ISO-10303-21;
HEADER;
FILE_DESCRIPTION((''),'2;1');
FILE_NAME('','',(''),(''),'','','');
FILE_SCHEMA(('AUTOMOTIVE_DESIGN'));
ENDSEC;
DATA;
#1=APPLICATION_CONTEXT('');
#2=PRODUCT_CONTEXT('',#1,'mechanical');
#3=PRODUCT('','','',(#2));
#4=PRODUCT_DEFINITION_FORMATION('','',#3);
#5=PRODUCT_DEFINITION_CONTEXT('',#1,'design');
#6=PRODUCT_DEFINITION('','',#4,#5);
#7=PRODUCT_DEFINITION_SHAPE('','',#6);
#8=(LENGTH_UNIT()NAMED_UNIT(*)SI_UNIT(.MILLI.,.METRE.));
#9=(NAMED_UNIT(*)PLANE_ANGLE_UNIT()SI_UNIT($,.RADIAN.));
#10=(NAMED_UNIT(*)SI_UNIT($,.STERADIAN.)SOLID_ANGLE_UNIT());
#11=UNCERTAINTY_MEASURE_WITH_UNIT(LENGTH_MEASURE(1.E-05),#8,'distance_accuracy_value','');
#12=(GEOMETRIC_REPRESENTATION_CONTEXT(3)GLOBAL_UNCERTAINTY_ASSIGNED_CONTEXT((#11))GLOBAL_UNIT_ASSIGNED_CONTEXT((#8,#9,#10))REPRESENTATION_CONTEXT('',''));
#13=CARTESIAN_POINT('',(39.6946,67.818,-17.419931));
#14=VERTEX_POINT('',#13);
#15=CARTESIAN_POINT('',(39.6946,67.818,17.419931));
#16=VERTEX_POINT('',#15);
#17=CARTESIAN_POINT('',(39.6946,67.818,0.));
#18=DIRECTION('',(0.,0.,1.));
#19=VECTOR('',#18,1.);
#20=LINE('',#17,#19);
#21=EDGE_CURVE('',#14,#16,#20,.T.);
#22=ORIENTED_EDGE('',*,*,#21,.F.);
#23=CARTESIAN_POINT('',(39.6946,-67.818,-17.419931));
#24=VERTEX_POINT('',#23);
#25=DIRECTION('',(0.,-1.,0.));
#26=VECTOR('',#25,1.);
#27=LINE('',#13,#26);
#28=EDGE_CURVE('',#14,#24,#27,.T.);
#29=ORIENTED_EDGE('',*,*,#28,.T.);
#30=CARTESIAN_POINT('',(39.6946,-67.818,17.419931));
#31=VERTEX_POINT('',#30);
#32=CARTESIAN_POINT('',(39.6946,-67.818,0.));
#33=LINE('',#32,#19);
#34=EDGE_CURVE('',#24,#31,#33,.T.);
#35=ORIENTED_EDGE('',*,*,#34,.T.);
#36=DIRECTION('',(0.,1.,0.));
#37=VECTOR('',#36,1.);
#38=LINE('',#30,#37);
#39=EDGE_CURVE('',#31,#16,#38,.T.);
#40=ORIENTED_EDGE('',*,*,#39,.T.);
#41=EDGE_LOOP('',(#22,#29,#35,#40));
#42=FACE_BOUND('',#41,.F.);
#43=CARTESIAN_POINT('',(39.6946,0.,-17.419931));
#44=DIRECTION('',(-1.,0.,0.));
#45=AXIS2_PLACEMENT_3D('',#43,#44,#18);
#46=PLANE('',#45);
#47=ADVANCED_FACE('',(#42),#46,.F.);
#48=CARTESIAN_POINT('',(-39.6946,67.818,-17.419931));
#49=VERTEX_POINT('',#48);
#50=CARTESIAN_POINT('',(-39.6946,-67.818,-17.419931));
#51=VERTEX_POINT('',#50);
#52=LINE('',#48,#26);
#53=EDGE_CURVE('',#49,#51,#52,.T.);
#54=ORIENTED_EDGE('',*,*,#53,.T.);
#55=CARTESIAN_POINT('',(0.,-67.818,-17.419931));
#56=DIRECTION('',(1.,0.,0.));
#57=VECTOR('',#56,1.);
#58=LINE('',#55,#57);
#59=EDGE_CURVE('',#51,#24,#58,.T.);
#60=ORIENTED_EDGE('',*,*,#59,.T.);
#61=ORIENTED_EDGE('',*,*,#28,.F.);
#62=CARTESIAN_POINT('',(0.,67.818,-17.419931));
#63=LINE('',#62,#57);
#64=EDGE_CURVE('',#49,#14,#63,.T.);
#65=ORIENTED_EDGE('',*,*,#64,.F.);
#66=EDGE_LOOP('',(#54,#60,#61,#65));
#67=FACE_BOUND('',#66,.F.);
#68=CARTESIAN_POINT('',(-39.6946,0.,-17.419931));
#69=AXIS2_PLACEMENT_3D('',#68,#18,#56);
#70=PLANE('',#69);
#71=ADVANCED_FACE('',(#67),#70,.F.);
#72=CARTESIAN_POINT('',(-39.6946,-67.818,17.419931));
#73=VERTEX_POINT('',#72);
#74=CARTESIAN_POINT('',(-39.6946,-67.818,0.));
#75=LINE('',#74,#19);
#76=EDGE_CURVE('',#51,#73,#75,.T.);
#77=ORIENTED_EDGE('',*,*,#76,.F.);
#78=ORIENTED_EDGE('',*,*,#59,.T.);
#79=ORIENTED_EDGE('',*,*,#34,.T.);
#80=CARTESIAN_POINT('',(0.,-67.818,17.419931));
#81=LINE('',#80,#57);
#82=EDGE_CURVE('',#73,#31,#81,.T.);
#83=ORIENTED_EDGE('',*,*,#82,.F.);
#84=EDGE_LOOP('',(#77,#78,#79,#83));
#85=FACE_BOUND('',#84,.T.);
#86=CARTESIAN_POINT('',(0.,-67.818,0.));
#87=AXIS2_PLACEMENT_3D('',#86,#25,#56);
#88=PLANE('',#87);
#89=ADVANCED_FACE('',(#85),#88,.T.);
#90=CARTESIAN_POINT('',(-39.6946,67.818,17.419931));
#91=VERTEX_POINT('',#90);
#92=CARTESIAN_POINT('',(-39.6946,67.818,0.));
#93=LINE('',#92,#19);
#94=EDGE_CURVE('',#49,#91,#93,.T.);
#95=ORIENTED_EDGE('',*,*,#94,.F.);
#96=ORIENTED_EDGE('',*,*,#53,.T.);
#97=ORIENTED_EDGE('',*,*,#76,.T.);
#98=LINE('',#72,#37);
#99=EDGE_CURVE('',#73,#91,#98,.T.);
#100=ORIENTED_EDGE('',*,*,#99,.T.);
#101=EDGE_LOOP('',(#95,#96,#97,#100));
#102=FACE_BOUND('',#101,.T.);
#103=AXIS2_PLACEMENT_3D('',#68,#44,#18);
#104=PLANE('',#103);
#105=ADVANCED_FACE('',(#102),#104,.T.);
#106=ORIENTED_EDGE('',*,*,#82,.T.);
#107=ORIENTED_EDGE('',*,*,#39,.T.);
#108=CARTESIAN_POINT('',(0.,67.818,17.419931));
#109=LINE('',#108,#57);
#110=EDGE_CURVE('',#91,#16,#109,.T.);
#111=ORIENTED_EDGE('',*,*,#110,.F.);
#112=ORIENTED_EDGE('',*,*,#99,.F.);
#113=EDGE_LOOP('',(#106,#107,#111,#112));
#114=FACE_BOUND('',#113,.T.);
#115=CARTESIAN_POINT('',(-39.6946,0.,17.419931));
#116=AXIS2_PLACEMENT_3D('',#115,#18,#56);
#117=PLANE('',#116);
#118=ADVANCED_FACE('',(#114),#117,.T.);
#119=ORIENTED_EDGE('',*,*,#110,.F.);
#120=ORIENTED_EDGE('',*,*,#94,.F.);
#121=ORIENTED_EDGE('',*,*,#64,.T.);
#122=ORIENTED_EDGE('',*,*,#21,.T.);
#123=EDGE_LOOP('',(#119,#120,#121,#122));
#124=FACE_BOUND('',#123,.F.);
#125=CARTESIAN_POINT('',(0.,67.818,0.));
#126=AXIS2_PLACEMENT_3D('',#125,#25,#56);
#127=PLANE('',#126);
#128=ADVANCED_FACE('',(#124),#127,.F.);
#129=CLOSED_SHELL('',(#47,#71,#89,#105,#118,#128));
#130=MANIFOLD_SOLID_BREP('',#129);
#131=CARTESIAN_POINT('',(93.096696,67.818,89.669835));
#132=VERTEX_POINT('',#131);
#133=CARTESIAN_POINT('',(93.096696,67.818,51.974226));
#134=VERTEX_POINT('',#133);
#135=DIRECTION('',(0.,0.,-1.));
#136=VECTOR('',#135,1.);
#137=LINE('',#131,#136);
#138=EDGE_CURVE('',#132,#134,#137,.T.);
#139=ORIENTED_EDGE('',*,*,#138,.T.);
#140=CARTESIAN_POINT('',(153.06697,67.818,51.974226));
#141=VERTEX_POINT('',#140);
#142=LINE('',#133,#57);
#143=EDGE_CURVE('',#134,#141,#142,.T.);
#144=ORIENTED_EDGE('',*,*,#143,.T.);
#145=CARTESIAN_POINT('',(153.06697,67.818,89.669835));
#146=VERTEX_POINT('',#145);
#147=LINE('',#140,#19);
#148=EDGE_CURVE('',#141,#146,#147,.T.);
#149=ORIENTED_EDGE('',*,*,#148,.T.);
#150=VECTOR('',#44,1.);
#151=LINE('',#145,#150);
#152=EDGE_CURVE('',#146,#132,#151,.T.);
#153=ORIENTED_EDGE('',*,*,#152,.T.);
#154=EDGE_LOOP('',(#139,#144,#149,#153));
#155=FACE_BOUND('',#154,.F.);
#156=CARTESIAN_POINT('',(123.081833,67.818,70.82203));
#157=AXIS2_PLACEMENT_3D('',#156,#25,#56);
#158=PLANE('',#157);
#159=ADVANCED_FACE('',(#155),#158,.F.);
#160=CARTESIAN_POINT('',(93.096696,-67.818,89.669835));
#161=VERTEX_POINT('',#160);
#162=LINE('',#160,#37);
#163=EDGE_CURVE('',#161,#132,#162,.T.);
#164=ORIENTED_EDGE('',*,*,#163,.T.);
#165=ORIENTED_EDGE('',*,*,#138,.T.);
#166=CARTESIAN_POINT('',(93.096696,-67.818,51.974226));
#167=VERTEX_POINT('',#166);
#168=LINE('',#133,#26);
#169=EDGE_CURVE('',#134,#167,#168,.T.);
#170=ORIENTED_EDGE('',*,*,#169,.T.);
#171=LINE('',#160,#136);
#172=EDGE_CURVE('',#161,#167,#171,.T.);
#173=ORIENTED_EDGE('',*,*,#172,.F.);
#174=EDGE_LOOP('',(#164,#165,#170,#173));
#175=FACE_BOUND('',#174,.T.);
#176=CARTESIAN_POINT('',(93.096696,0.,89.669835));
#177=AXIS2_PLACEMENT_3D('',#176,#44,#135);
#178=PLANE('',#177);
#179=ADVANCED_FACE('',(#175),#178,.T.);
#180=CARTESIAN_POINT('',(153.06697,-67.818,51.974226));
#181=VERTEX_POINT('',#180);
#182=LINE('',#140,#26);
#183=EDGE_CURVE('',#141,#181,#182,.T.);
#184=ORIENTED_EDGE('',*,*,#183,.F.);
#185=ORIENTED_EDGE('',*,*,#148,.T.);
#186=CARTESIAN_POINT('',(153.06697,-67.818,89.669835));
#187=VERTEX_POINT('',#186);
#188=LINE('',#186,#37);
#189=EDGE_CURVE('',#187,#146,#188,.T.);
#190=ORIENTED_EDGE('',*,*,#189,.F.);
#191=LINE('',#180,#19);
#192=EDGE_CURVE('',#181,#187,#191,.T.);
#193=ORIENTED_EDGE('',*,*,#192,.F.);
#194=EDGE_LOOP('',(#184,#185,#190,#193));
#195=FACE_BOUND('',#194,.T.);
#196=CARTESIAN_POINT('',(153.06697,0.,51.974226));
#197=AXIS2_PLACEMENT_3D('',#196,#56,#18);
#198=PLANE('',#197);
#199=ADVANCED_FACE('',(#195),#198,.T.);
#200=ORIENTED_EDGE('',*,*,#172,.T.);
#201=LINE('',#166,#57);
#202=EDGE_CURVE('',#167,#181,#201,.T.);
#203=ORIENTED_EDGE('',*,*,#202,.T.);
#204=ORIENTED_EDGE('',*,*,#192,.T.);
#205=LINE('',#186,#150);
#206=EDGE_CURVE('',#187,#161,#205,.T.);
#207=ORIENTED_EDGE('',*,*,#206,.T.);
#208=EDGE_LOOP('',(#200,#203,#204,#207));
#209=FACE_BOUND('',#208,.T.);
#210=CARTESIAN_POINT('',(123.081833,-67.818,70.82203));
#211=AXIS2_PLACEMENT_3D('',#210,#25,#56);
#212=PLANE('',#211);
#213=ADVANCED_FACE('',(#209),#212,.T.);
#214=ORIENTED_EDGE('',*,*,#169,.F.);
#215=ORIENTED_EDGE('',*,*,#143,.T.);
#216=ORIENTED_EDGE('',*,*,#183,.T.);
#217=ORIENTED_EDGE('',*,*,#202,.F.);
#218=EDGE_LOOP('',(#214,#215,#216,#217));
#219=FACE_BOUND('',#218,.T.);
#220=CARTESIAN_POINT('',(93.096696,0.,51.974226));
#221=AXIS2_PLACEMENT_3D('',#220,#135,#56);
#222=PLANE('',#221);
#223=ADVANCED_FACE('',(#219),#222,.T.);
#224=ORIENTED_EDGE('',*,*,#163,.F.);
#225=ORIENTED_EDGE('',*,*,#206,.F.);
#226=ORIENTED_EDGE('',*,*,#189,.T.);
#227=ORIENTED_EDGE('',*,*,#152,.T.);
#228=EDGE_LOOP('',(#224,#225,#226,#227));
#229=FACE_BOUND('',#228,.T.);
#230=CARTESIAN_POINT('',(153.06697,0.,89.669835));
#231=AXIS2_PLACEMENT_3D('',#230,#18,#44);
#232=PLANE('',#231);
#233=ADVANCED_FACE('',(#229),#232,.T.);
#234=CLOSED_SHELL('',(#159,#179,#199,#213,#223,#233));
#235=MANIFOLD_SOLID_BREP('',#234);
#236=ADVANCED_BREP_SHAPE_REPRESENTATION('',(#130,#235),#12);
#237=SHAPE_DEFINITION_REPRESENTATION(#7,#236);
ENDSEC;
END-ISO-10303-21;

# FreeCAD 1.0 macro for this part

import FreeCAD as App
import Part
import Sketcher
from FreeCAD import Vector
Q = App.Units.Quantity


def add_polygon(sketch, points):
    """Adds a closed chain of lines whose ends are joined by coincident constraints."""
    first, n = sketch.GeometryCount, len(points)
    for a, b in zip(points, points[1:] + points[:1]):
        sketch.addGeometry(Part.LineSegment(App.Vector(*a, 0), App.Vector(*b, 0)), False)
    for i in range(n):
        sketch.addConstraint(Sketcher.Constraint("Coincident", first + i, 2, first + (i + 1) % n, 1))

doc = App.newDocument("Part")
body = doc.addObject("PartDesign::Body", "Body")
body.AllowCompound = True

# Sketch on XZ plane
sketch1 = body.newObject("Sketcher::SketchObject", "Sketch")
sketch1.AttachmentSupport = (doc.getObject("XZ_Plane"), [""])
sketch1.MapMode = "FlatFace"
add_polygon(sketch1, [(-40, 17), (-40, -17), (40, -17), (40, 17)])  # lines 0-3
add_polygon(sketch1, [(93, 90), (93, 52), (153, 52), (153, 90)])  # lines 4-7
sketch1.addConstraint(Sketcher.Constraint("Vertical", 0))
sketch1.addConstraint(Sketcher.Constraint("Horizontal", 1))
sketch1.addConstraint(Sketcher.Constraint("Vertical", 2))
sketch1.addConstraint(Sketcher.Constraint("Horizontal", 3))
sketch1.addConstraint(Sketcher.Constraint("Vertical", 4))
sketch1.addConstraint(Sketcher.Constraint("Horizontal", 5))
sketch1.addConstraint(Sketcher.Constraint("Vertical", 6))
sketch1.addConstraint(Sketcher.Constraint("Horizontal", 7))
sketch1.addConstraint(Sketcher.Constraint("Symmetric", 0, 2, 2, 2, -1, 1))
sketch1.addConstraint(Sketcher.Constraint("DistanceX", 1, 1, 1, 2, 79.3892))
sketch1.addConstraint(Sketcher.Constraint("DistanceY", 0, 2, 0, 1, 34.839862))
sketch1.addConstraint(Sketcher.Constraint("DistanceY", 4, 2, 4, 1, 37.695609))
sketch1.addConstraint(Sketcher.Constraint("DistanceX", 5, 1, 5, 2, 59.970274))
sketch1.addConstraint(Sketcher.Constraint("DistanceX", -1, 1, 5, 2, 153.06697))
sketch1.addConstraint(Sketcher.Constraint("DistanceY", -1, 1, 4, 2, 51.974226))
pad1 = body.newObject("PartDesign::Pad", "Pad")
pad1.Profile = sketch1
pad1.Length = Q("5.34 in")
pad1.Midplane = True

doc.recompute()
